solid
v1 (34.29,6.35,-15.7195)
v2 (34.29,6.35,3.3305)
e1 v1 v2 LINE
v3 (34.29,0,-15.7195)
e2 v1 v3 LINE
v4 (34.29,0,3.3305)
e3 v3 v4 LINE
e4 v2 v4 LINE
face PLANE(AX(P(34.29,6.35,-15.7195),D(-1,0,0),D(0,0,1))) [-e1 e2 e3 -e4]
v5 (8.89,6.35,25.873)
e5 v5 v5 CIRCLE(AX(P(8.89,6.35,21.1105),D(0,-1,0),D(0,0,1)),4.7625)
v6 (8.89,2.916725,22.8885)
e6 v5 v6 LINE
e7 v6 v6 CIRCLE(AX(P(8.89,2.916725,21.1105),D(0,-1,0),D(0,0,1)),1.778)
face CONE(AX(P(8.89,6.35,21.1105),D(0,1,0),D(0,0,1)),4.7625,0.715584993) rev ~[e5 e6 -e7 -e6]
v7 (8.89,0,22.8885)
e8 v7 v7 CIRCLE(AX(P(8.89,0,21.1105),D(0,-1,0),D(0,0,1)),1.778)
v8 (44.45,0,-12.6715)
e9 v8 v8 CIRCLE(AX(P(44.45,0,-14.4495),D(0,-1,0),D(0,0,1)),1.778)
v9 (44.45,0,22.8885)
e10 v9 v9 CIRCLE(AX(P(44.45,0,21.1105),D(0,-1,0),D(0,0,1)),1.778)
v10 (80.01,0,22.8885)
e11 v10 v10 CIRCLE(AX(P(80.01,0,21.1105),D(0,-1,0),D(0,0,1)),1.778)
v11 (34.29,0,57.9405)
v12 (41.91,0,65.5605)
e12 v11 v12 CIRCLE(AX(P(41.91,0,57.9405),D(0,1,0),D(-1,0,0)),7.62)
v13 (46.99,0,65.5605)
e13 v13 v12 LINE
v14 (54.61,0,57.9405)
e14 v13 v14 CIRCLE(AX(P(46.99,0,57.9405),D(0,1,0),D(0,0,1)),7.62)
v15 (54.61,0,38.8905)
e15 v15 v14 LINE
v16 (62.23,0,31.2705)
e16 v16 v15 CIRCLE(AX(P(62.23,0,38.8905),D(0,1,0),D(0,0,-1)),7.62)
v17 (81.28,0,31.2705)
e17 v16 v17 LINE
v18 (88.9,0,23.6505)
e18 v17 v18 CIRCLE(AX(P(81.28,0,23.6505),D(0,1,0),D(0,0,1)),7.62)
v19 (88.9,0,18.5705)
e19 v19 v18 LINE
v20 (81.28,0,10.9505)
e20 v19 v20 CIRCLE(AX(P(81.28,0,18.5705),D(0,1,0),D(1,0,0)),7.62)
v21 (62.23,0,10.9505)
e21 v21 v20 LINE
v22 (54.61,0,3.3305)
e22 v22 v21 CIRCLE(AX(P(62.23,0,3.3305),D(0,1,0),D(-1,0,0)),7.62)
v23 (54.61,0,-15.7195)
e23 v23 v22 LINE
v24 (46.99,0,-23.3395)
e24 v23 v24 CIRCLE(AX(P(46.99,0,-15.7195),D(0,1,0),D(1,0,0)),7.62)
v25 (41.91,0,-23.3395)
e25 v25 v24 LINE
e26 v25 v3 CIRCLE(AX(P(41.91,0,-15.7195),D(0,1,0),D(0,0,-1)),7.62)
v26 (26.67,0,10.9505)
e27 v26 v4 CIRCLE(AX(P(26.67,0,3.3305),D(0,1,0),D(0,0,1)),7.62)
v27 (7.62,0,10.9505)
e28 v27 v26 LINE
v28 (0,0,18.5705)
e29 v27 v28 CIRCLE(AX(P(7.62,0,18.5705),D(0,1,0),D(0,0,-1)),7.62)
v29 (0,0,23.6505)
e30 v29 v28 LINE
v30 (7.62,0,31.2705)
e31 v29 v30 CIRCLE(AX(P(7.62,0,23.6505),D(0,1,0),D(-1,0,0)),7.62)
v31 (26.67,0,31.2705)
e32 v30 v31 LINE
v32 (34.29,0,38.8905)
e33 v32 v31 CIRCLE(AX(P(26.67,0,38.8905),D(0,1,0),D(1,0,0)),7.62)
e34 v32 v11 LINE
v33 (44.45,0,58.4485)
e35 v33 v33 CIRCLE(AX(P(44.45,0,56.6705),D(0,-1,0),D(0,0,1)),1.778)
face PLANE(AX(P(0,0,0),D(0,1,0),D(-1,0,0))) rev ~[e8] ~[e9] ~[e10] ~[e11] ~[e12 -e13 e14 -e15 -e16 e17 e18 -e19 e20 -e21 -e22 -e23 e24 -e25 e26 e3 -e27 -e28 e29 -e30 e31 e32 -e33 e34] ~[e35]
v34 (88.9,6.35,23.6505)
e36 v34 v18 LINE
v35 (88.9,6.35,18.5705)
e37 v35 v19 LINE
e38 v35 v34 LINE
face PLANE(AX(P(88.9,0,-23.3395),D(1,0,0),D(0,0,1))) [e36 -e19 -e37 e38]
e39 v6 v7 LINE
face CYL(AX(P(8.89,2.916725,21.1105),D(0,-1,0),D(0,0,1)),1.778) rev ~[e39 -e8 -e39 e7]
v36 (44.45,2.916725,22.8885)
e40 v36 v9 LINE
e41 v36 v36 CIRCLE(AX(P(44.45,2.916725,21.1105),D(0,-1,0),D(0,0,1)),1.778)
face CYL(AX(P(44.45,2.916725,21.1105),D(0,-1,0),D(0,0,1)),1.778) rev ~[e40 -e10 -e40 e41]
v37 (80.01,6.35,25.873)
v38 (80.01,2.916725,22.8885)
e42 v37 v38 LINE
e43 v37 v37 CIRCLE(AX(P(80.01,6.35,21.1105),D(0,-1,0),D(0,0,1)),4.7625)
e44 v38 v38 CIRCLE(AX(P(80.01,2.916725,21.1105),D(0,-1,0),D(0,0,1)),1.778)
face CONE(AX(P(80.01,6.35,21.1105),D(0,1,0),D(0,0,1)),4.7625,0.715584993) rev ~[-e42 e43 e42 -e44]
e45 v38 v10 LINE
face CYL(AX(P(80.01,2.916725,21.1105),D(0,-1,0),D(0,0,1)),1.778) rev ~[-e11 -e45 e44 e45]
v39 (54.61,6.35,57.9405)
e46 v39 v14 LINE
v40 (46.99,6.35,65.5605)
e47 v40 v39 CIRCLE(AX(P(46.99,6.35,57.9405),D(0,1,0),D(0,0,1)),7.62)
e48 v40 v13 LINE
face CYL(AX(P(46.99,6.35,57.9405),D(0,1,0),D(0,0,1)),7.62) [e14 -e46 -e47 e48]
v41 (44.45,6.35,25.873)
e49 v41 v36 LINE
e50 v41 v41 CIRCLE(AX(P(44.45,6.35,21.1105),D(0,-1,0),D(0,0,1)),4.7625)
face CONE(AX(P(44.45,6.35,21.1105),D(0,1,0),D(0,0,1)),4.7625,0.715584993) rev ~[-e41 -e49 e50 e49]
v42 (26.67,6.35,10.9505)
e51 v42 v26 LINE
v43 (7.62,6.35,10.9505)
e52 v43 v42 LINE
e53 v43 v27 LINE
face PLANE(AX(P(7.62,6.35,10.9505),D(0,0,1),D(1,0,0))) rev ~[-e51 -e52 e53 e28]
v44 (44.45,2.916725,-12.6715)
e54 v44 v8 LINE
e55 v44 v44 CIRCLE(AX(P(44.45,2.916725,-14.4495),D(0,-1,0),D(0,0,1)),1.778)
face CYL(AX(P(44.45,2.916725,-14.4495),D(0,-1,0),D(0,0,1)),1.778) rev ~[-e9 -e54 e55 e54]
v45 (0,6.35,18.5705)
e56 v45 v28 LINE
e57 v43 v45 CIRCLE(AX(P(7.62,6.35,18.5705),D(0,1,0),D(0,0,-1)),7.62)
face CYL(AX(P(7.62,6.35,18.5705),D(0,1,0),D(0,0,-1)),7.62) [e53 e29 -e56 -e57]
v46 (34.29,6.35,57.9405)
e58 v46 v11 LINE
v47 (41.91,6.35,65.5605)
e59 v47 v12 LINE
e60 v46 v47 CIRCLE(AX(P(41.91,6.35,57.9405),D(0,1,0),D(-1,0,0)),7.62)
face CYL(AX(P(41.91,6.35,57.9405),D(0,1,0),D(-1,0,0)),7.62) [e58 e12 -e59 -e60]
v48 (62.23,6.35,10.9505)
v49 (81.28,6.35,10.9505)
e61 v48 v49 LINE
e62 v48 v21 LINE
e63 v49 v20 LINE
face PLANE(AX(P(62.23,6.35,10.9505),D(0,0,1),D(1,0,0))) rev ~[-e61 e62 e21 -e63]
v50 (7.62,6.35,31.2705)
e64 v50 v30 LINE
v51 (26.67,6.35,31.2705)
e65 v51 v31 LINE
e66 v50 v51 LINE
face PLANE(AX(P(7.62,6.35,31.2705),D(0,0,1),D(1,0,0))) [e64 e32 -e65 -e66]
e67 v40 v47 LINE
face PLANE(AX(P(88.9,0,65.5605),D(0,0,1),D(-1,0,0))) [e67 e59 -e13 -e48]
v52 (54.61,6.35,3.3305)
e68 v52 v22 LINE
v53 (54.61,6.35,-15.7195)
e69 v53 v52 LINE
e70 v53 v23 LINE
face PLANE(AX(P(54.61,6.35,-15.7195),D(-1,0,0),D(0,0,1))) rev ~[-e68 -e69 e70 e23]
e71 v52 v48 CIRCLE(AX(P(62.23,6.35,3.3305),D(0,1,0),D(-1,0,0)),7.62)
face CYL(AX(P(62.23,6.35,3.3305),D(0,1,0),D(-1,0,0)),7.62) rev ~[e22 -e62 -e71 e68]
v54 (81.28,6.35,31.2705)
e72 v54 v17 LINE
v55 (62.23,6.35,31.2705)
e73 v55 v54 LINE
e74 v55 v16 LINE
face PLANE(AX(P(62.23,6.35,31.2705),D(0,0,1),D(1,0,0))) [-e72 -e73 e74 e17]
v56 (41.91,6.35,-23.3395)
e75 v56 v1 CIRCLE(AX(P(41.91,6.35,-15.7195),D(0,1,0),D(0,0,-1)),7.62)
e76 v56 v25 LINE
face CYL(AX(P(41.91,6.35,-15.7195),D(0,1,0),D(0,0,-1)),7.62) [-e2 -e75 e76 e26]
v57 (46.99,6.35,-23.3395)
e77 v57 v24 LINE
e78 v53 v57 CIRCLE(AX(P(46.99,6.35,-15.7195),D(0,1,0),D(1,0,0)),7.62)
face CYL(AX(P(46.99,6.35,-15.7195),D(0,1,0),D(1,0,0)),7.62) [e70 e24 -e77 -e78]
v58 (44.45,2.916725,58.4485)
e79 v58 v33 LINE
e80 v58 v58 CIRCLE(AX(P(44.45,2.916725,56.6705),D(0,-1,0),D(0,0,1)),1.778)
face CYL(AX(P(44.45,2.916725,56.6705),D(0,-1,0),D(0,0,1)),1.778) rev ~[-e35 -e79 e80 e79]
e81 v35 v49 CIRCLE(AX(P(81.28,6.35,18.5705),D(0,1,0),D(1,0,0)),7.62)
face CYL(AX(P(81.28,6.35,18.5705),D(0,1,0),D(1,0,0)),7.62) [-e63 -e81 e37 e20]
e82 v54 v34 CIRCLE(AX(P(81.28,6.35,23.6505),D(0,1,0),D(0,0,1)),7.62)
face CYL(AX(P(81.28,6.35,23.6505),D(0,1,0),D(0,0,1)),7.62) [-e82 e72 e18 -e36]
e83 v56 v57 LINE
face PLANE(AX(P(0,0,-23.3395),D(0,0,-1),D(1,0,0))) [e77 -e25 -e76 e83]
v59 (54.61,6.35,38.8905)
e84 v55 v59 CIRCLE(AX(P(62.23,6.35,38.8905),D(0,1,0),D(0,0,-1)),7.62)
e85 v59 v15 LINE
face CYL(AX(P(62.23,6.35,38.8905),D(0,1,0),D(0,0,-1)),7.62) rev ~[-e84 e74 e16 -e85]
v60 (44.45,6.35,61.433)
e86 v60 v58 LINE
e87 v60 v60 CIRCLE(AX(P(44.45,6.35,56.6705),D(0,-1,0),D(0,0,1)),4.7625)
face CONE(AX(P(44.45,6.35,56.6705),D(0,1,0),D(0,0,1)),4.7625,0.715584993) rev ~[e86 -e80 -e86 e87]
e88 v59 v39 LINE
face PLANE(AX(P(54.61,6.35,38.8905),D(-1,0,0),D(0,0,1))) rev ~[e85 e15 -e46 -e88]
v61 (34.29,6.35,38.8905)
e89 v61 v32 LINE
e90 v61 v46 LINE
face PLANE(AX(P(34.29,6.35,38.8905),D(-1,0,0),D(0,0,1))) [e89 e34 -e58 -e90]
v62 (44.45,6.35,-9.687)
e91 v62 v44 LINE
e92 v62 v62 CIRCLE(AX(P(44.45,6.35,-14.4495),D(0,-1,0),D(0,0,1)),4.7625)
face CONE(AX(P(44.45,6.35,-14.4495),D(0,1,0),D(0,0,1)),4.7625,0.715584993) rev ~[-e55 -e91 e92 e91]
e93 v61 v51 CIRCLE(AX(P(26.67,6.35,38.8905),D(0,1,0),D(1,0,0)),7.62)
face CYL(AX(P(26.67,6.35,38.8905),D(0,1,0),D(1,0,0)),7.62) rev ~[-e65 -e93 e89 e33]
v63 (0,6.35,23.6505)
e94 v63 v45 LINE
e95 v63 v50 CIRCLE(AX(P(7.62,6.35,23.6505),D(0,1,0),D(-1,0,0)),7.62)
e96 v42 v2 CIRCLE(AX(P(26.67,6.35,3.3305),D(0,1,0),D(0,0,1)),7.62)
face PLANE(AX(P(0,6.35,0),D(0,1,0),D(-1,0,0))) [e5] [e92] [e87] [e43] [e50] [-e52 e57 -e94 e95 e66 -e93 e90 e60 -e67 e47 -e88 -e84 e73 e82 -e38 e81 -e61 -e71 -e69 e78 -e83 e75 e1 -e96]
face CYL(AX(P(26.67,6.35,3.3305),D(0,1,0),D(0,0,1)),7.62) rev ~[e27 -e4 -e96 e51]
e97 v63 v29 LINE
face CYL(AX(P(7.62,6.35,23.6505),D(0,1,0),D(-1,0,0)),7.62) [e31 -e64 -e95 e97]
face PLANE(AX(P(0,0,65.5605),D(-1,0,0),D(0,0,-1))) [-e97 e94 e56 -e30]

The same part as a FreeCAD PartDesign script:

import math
import FreeCAD as App
import Part
import Sketcher
Q = App.Units.Quantity


def add_polygon(sketch, points):
    """Adds a closed chain of lines whose ends are joined by coincident constraints."""
    first, n = sketch.GeometryCount, len(points)
    for a, b in zip(points, points[1:] + points[:1]):
        sketch.addGeometry(Part.LineSegment(App.Vector(*a, 0), App.Vector(*b, 0)), False)
    for i in range(n):
        sketch.addConstraint(Sketcher.Constraint("Coincident", first + i, 2, first + (i + 1) % n, 1))

doc = App.newDocument("Part")
body = doc.addObject("PartDesign::Body", "Body")

sketch1 = body.newObject("Sketcher::SketchObject", "Sketch")
sketch1.AttachmentSupport = (doc.getObject("XZ_Plane"), [""])
sketch1.MapMode = "FlatFace"
add_polygon(sketch1, [(88.9, -23.3395), (0, -23.3395), (0, 65.5605), (88.9, 65.5605)])
sketch1.addConstraint([
    Sketcher.Constraint("Horizontal", 0),
    Sketcher.Constraint("Vertical", 1),
    Sketcher.Constraint("Horizontal", 2),
    Sketcher.Constraint("Vertical", 3),
    Sketcher.Constraint("PointOnObject", 0, 2, -2),
    Sketcher.Constraint("Equal", 2, 1),
    Sketcher.Constraint("DistanceX", 0, 2, 0, 1, Q("3.5 in")),
    Sketcher.Constraint("DistanceY", 0, 2, -1, 1, Q("23.3395 mm")),
])
pad1 = body.newObject("PartDesign::Pad", "Pad")
pad1.Profile = sketch1
pad1.Length = Q("0.25 in")
pad1.Reversed = True

sketch2 = body.newObject("Sketcher::SketchObject", "Sketch001")
sketch2.AttachmentSupport = (doc.getObject("XZ_Plane"), [""])
sketch2.MapMode = "FlatFace"
sketch2.AttachmentOffset = App.Placement(App.Vector(0, 0, -0.25 * 25.4), App.Rotation())
sketch2.addGeometry([
    Part.Circle(App.Vector(44.45, 21.1105, 0), App.Vector(0, 0, 1), 1.778),
    Part.Circle(App.Vector(80.01, 21.1105, 0), App.Vector(0, 0, 1), 1.778),
    Part.Circle(App.Vector(8.89, 21.1105, 0), App.Vector(0, 0, 1), 1.778),
    Part.Circle(App.Vector(44.45, -14.4495, 0), App.Vector(0, 0, 1), 1.778),
    Part.Circle(App.Vector(44.45, 56.6705, 0), App.Vector(0, 0, 1), 1.778),
], False)
sketch2.addConstraint([
    Sketcher.Constraint("Equal", 0, 1),
    Sketcher.Constraint("Equal", 1, 2),
    Sketcher.Constraint("Equal", 2, 3),
    Sketcher.Constraint("Equal", 3, 4),
    Sketcher.Constraint("Horizontal", 0, 3, 1, 3),
    Sketcher.Constraint("Horizontal", 1, 3, 2, 3),
    Sketcher.Constraint("Vertical", 0, 3, 3, 3),
    Sketcher.Constraint("Vertical", 3, 3, 4, 3),
    Sketcher.Constraint("Diameter", 0, Q("0.14 in")),
    Sketcher.Constraint("DistanceX", 0, 3, 1, 3, Q("1.4 in")),
    Sketcher.Constraint("DistanceX", 2, 3, 0, 3, Q("1.4 in")),
    Sketcher.Constraint("DistanceY", 3, 3, 0, 3, Q("1.4 in")),
    Sketcher.Constraint("DistanceY", 0, 3, 4, 3, Q("1.4 in")),
    Sketcher.Constraint("DistanceX", -1, 1, 0, 3, Q("1.75 in")),
    Sketcher.Constraint("DistanceY", -1, 1, 0, 3, Q("21.1105 mm")),
])
doc.recompute()
hole = body.newObject("PartDesign::Hole", "Hole")
hole.Profile = sketch2
hole.ThreadType = "None"
hole.Diameter = Q("0.14 in")
hole.DepthType = "ThroughAll"
hole.HoleCutType = "Countersink"
hole.HoleCutDiameter = Q("0.375 in")
hole.HoleCutCountersinkAngle = 82
hole.Reversed = True

sketch3 = body.newObject("Sketcher::SketchObject", "Sketch002")
sketch3.AttachmentSupport = (doc.getObject("XZ_Plane"), [""])
sketch3.MapMode = "FlatFace"
sketch3.AttachmentOffset = App.Placement(App.Vector(0, 0, -0.25 * 25.4), App.Rotation())
sketch3.addGeometry([
    Part.LineSegment(App.Vector(88.9, 18.5705, 0), App.Vector(88.9, -23.3395, 0)),
    Part.LineSegment(App.Vector(88.9, -23.3395, 0), App.Vector(46.99, -23.3395, 0)),
    Part.ArcOfCircle(Part.Circle(App.Vector(46.99, -15.7195, 0), App.Vector(0, 0, 1), 7.62), math.radians(-90), math.radians(0)),
    Part.LineSegment(App.Vector(54.61, -15.7195, 0), App.Vector(54.61, 3.3305, 0)),
    Part.ArcOfCircle(Part.Circle(App.Vector(62.23, 3.3305, 0), App.Vector(0, 0, 1), 7.62), math.radians(90), math.radians(180)),
    Part.LineSegment(App.Vector(62.23, 10.9505, 0), App.Vector(81.28, 10.9505, 0)),
    Part.ArcOfCircle(Part.Circle(App.Vector(81.28, 18.5705, 0), App.Vector(0, 0, 1), 7.62), math.radians(-90), math.radians(0)),
    Part.ArcOfCircle(Part.Circle(App.Vector(41.91, -15.7195, 0), App.Vector(0, 0, 1), 7.62), math.radians(180), math.radians(270)),
    Part.LineSegment(App.Vector(41.91, -23.3395, 0), App.Vector(0, -23.3395, 0)),
    Part.LineSegment(App.Vector(0, -23.3395, 0), App.Vector(0, 18.5705, 0)),
    Part.ArcOfCircle(Part.Circle(App.Vector(7.62, 18.5705, 0), App.Vector(0, 0, 1), 7.62), math.radians(180), math.radians(270)),
    Part.LineSegment(App.Vector(7.62, 10.9505, 0), App.Vector(26.67, 10.9505, 0)),
    Part.ArcOfCircle(Part.Circle(App.Vector(26.67, 3.3305, 0), App.Vector(0, 0, 1), 7.62), math.radians(0), math.radians(90)),
    Part.LineSegment(App.Vector(34.29, 3.3305, 0), App.Vector(34.29, -15.7195, 0)),
    Part.LineSegment(App.Vector(88.9, 65.5605, 0), App.Vector(88.9, 23.6505, 0)),
    Part.ArcOfCircle(Part.Circle(App.Vector(81.28, 23.6505, 0), App.Vector(0, 0, 1), 7.62), math.radians(0), math.radians(90)),
    Part.LineSegment(App.Vector(81.28, 31.2705, 0), App.Vector(62.23, 31.2705, 0)),
    Part.ArcOfCircle(Part.Circle(App.Vector(62.23, 38.8905, 0), App.Vector(0, 0, 1), 7.62), math.radians(180), math.radians(270)),
    Part.LineSegment(App.Vector(54.61, 38.8905, 0), App.Vector(54.61, 57.9405, 0)),
    Part.ArcOfCircle(Part.Circle(App.Vector(46.99, 57.9405, 0), App.Vector(0, 0, 1), 7.62), math.radians(0), math.radians(90)),
    Part.LineSegment(App.Vector(46.99, 65.5605, 0), App.Vector(88.9, 65.5605, 0)),
    Part.ArcOfCircle(Part.Circle(App.Vector(7.62, 23.6505, 0), App.Vector(0, 0, 1), 7.62), math.radians(90), math.radians(180)),
    Part.LineSegment(App.Vector(0, 23.6505, 0), App.Vector(0, 65.5605, 0)),
    Part.LineSegment(App.Vector(0, 65.5605, 0), App.Vector(41.91, 65.5605, 0)),
    Part.ArcOfCircle(Part.Circle(App.Vector(41.91, 57.9405, 0), App.Vector(0, 0, 1), 7.62), math.radians(90), math.radians(180)),
    Part.LineSegment(App.Vector(34.29, 57.9405, 0), App.Vector(34.29, 38.8905, 0)),
    Part.ArcOfCircle(Part.Circle(App.Vector(26.67, 38.8905, 0), App.Vector(0, 0, 1), 7.62), math.radians(-90), math.radians(0)),
    Part.LineSegment(App.Vector(26.67, 31.2705, 0), App.Vector(7.62, 31.2705, 0)),
], False)
sketch3.addConstraint([
    Sketcher.Constraint("Coincident", 0, 2, 1, 1),
    Sketcher.Constraint("Tangent", 1, 2, 2, 1),
    Sketcher.Constraint("Tangent", 2, 2, 3, 1),
    Sketcher.Constraint("Tangent", 3, 2, 4, 2),
    Sketcher.Constraint("Tangent", 4, 1, 5, 1),
    Sketcher.Constraint("Tangent", 5, 2, 6, 1),
    Sketcher.Constraint("Tangent", 6, 2, 0, 1),
    Sketcher.Constraint("Tangent", 7, 2, 8, 1),
    Sketcher.Constraint("Coincident", 8, 2, 9, 1),
    Sketcher.Constraint("Tangent", 9, 2, 10, 1),
    Sketcher.Constraint("Tangent", 10, 2, 11, 1),
    Sketcher.Constraint("Tangent", 11, 2, 12, 2),
    Sketcher.Constraint("Tangent", 12, 1, 13, 1),
    Sketcher.Constraint("Tangent", 13, 2, 7, 1),
    Sketcher.Constraint("Tangent", 14, 2, 15, 1),
    Sketcher.Constraint("Tangent", 15, 2, 16, 1),
    Sketcher.Constraint("Tangent", 16, 2, 17, 2),
    Sketcher.Constraint("Tangent", 17, 1, 18, 1),
    Sketcher.Constraint("Tangent", 18, 2, 19, 1),
    Sketcher.Constraint("Tangent", 19, 2, 20, 1),
    Sketcher.Constraint("Coincident", 20, 2, 14, 1),
    Sketcher.Constraint("Tangent", 21, 2, 22, 1),
    Sketcher.Constraint("Coincident", 22, 2, 23, 1),
    Sketcher.Constraint("Tangent", 23, 2, 24, 1),
    Sketcher.Constraint("Tangent", 24, 2, 25, 1),
    Sketcher.Constraint("Tangent", 25, 2, 26, 2),
    Sketcher.Constraint("Tangent", 26, 1, 27, 1),
    Sketcher.Constraint("Tangent", 27, 2, 21, 1),
    Sketcher.Constraint("Vertical", 0),
    Sketcher.Constraint("Horizontal", 1),
    Sketcher.Constraint("Vertical", 3),
    Sketcher.Constraint("Horizontal", 5),
    Sketcher.Constraint("Horizontal", 8),
    Sketcher.Constraint("Vertical", 9),
    Sketcher.Constraint("Horizontal", 11),
    Sketcher.Constraint("Vertical", 13),
    Sketcher.Constraint("Vertical", 14),
    Sketcher.Constraint("Horizontal", 16),
    Sketcher.Constraint("Vertical", 18),
    Sketcher.Constraint("Horizontal", 20),
    Sketcher.Constraint("Vertical", 22),
    Sketcher.Constraint("Horizontal", 23),
    Sketcher.Constraint("Vertical", 25),
    Sketcher.Constraint("Horizontal", 27),
    Sketcher.Constraint("Equal", 2, 4),
    Sketcher.Constraint("Equal", 4, 6),
    Sketcher.Constraint("Equal", 6, 7),
    Sketcher.Constraint("Equal", 7, 10),
    Sketcher.Constraint("Equal", 10, 12),
    Sketcher.Constraint("Equal", 12, 15),
    Sketcher.Constraint("Equal", 15, 17),
    Sketcher.Constraint("Equal", 17, 19),
    Sketcher.Constraint("Equal", 19, 21),
    Sketcher.Constraint("Equal", 21, 24),
    Sketcher.Constraint("Equal", 24, 26),
    Sketcher.Constraint("PointOnObject", 8, 2, -2),
    Sketcher.Constraint("PointOnObject", 21, 2, -2),
    Sketcher.Constraint("Horizontal", 2, 3, 7, 3),
    Sketcher.Constraint("Horizontal", 6, 3, 10, 3),
    Sketcher.Constraint("Horizontal", 15, 3, 21, 3),
    Sketcher.Constraint("Horizontal", 19, 3, 24, 3),
    Sketcher.Constraint("Vertical", 6, 3, 15, 3),
    Sketcher.Constraint("Vertical", 4, 3, 17, 3),
    Sketcher.Constraint("Vertical", 7, 3, 24, 3),
    Sketcher.Constraint("Equal", 1, 8),
    Sketcher.Constraint("Equal", 23, 0),
    Sketcher.Constraint("Equal", 9, 14),
    Sketcher.Constraint("Radius", 2, Q("0.3 in")),
    Sketcher.Constraint("DistanceX", 1, 2, 1, 1, Q("1.65 in")),
    Sketcher.Constraint("DistanceX", -1, 1, 6, 3, Q("3.2 in")),
    Sketcher.Constraint("DistanceY", 6, 3, 15, 3, Q("0.2 in")),
    Sketcher.Constraint("DistanceY", 2, 3, -1, 1, Q("15.7195 mm")),
])
pocket1 = body.newObject("PartDesign::Pocket", "Pocket")
pocket1.Profile = sketch3
pocket1.Length = Q("0.25 in")
pocket1.Reversed = True

doc.recompute()
